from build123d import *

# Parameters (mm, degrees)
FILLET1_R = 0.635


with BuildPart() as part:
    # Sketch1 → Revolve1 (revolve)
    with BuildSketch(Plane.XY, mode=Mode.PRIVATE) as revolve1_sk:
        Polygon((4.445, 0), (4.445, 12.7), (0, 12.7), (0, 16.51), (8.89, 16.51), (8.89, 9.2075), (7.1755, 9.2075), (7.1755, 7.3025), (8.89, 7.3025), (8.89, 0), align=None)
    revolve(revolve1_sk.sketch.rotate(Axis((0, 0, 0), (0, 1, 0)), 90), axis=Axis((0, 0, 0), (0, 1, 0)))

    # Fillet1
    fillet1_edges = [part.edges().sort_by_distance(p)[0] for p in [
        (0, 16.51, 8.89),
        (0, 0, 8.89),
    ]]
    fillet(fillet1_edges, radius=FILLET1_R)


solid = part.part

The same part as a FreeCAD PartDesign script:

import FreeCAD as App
import Part
import Sketcher
Q = App.Units.Quantity


def edges_at(feature, points):
    """Names of the edges that pass closest to the given points."""
    edges = feature.Shape.Edges
    near = lambda p: min(range(len(edges)), key=lambda i: edges[i].distToShape(Part.Vertex(*p))[0])
    return sorted({f"Edge{near(p) + 1}" for p in points})

doc = App.newDocument("Part")
body = doc.addObject("PartDesign::Body", "Body")

# Sketch on XY plane
sketch1 = doc.addObject("Sketcher::SketchObject", "Sketch")
body.addObject(sketch1)
sketch1.AttachmentSupport = (doc.XY_Plane, [""])
sketch1.MapMode = "FlatFace"
sketch1.addGeometry([
    Part.LineSegment(App.Vector(4.4, 12.7, 0), App.Vector(4.4, 0, 0)),  # 0
    Part.LineSegment(App.Vector(4.4, 0, 0), App.Vector(8.9, 0, 0)),  # 1
    Part.LineSegment(App.Vector(8.9, 0, 0), App.Vector(8.9, 7.3, 0)),  # 2
    Part.LineSegment(App.Vector(8.9, 7.3, 0), App.Vector(7.2, 7.3, 0)),  # 3
    Part.LineSegment(App.Vector(7.2, 7.3, 0), App.Vector(7.2, 9.2, 0)),  # 4
    Part.LineSegment(App.Vector(7.2, 9.2, 0), App.Vector(8.9, 9.2, 0)),  # 5
    Part.LineSegment(App.Vector(8.9, 9.2, 0), App.Vector(8.9, 16.5, 0)),  # 6
    Part.LineSegment(App.Vector(8.9, 16.5, 0), App.Vector(0, 16.5, 0)),  # 7
    Part.LineSegment(App.Vector(0, 16.5, 0), App.Vector(0, 12.7, 0)),  # 8
    Part.LineSegment(App.Vector(0, 12.7, 0), App.Vector(4.4, 12.7, 0)),  # 9
], False)
sketch1.addConstraint([
    Sketcher.Constraint("Coincident", 0, 2, 1, 1),
    Sketcher.Constraint("Coincident", 1, 2, 2, 1),
    Sketcher.Constraint("Coincident", 2, 2, 3, 1),
    Sketcher.Constraint("Coincident", 3, 2, 4, 1),
    Sketcher.Constraint("Coincident", 4, 2, 5, 1),
    Sketcher.Constraint("Coincident", 5, 2, 6, 1),
    Sketcher.Constraint("Coincident", 6, 2, 7, 1),
    Sketcher.Constraint("Coincident", 7, 2, 8, 1),
    Sketcher.Constraint("Coincident", 8, 2, 9, 1),
    Sketcher.Constraint("Coincident", 9, 2, 0, 1),
    Sketcher.Constraint("Vertical", 0),
    Sketcher.Constraint("Horizontal", 1),
    Sketcher.Constraint("Vertical", 2),
    Sketcher.Constraint("Horizontal", 3),
    Sketcher.Constraint("Vertical", 4),
    Sketcher.Constraint("Horizontal", 5),
    Sketcher.Constraint("Vertical", 6),
    Sketcher.Constraint("Horizontal", 7),
    Sketcher.Constraint("Vertical", 8),
    Sketcher.Constraint("Horizontal", 9),
    Sketcher.Constraint("PointOnObject", 0, 2, -1),
    Sketcher.Constraint("PointOnObject", 7, 2, -2),
    Sketcher.Constraint("Vertical", 2, 2, 5, 2),
    Sketcher.Constraint("Equal", 1, 9),
    Sketcher.Constraint("Equal", 2, 6),
    Sketcher.Constraint("DistanceY", 0, 2, 0, 1, Q("0.5 in")),
    Sketcher.Constraint("DistanceX", 7, 2, 7, 1, Q("0.35 in")),
    Sketcher.Constraint("DistanceY", 8, 2, 8, 1, Q("0.15 in")),
    Sketcher.Constraint("DistanceY", 4, 1, 4, 2, Q("0.075 in")),
    Sketcher.Constraint("DistanceX", 3, 2, 3, 1, Q("0.0675 in")),
])
revolution = doc.addObject("PartDesign::Revolution", "Revolution")
body.addObject(revolution)
revolution.Profile = sketch1
revolution.ReferenceAxis = (sketch1, ["V_Axis"])
revolution.Angle = 360
doc.recompute()

fillet = doc.addObject("PartDesign::Fillet", "Fillet")
body.addObject(fillet)
fillet.Base = (revolution, edges_at(revolution, [(0, 16.51, 8.89), (0, 0, 8.89)]))
fillet.Radius = Q("0.025 in")

doc.recompute()
